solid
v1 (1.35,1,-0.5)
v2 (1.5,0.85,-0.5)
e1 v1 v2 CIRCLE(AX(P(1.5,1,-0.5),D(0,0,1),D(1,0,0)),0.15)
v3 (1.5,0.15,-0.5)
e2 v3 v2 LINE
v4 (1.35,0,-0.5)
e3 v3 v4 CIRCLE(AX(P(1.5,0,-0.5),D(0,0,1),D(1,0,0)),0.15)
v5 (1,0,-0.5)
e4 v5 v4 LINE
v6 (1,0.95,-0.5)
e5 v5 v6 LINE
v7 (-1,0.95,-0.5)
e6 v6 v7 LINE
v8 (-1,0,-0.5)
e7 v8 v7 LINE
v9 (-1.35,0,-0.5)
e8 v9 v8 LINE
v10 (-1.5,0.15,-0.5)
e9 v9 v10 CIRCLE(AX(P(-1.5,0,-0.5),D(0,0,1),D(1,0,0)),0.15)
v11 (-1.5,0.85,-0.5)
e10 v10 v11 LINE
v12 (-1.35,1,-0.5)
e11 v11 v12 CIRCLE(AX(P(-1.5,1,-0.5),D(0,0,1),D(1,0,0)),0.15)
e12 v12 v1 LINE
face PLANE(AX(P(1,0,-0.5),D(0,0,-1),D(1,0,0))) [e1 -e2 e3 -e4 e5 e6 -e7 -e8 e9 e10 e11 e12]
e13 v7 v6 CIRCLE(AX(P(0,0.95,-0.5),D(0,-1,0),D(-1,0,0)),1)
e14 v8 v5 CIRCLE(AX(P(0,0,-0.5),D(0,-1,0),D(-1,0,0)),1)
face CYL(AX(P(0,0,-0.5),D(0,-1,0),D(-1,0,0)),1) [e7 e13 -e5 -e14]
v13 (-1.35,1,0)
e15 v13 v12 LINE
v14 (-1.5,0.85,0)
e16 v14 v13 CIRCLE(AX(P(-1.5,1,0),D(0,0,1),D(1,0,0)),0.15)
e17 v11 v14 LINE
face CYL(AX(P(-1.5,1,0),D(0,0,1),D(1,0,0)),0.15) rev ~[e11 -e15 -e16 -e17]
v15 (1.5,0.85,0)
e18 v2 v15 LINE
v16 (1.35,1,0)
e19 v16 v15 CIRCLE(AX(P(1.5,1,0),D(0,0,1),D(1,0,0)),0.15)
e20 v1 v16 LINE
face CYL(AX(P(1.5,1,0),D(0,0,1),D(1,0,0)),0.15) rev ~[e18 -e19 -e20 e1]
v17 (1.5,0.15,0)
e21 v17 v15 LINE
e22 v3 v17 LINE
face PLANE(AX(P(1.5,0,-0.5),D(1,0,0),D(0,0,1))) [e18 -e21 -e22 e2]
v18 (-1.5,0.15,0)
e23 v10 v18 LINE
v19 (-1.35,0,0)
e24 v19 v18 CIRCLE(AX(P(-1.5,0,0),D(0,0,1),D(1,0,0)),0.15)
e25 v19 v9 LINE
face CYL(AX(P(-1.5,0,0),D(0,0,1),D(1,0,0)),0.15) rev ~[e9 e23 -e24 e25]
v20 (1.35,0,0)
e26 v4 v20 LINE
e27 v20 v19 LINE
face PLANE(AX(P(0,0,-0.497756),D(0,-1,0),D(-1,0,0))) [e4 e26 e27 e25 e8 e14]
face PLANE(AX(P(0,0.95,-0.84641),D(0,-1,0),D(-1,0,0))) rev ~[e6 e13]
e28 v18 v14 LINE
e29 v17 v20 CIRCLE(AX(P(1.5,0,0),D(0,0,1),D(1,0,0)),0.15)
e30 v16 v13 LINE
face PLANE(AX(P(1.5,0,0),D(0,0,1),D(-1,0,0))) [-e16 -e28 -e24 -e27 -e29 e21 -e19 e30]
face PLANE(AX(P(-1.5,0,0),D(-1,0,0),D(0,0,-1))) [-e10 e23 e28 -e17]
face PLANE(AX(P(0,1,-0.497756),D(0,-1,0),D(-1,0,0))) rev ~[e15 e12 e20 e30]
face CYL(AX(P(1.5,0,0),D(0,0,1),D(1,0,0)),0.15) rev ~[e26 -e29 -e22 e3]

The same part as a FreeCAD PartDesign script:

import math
import FreeCAD as App
import Part
import Sketcher

V = App.Vector

doc = App.newDocument("Part")
body = doc.addObject("PartDesign::Body", "Body")

# Sketch on XZ plane
sketch1 = body.newObject("Sketcher::SketchObject", "Sketch")
sketch1.AttachmentSupport = (doc.getObject("XZ_Plane"), [""])
sketch1.MapMode = "FlatFace"
sketch1.addGeometry([
    Part.LineSegment(V(1.5, -0.5, 0), V(1, -0.5, 0)),  # 0
    Part.ArcOfCircle(Part.Circle(V(0, -0.5, 0), V(0, 0, 1), 1), math.radians(180), math.radians(360)),  # 1
    Part.LineSegment(V(-1, -0.5, 0), V(-1.5, -0.5, 0)),  # 2
    Part.LineSegment(V(-1.5, -0.5, 0), V(-1.5, 0, 0)),  # 3
    Part.LineSegment(V(-1.5, 0, 0), V(1.5, 0, 0)),  # 4
    Part.LineSegment(V(1.5, 0, 0), V(1.5, -0.5, 0)),  # 5
], False)
sketch1.addConstraint([
    Sketcher.Constraint("Coincident", 0, 2, 1, 2),
    Sketcher.Constraint("Coincident", 1, 1, 2, 1),
    Sketcher.Constraint("Coincident", 2, 2, 3, 1),
    Sketcher.Constraint("Coincident", 3, 2, 4, 1),
    Sketcher.Constraint("Coincident", 4, 2, 5, 1),
    Sketcher.Constraint("Coincident", 5, 2, 0, 1),
    Sketcher.Constraint("Horizontal", 0),
    Sketcher.Constraint("Horizontal", 2),
    Sketcher.Constraint("Vertical", 3),
    Sketcher.Constraint("Horizontal", 4),
    Sketcher.Constraint("Vertical", 5),
    Sketcher.Constraint("Symmetric", 3, 2, 4, 2, -1, 1),
    Sketcher.Constraint("Symmetric", 0, 2, 1, 1, -2),
    Sketcher.Constraint("Horizontal", 1, 3, 0, 2),
    Sketcher.Constraint("Equal", 2, 3),
    Sketcher.Constraint("Radius", 1, 1.0),
    Sketcher.Constraint("DistanceX", 4, 1, 4, 2, 3.0),
])
pad1 = body.newObject("PartDesign::Pad", "Pad")
pad1.Profile = sketch1
pad1.Length = 1
pad1.Reversed = True

# Sketch on XY plane
sketch2 = body.newObject("Sketcher::SketchObject", "Sketch001")
sketch2.AttachmentSupport = (doc.getObject("XY_Plane"), [""])
sketch2.MapMode = "FlatFace"
sketch2.addGeometry([
    Part.Circle(V(1.5, 1, 0), V(0, 0, 1), 0.15),
    Part.Circle(V(1.5, 0, 0), V(0, 0, 1), 0.15),
    Part.Circle(V(-1.5, 1, 0), V(0, 0, 1), 0.15),
    Part.Circle(V(-1.5, 0, 0), V(0, 0, 1), 0.15),
], False)
sketch2.addConstraint([
    Sketcher.Constraint("Equal", 0, 1),
    Sketcher.Constraint("Equal", 1, 2),
    Sketcher.Constraint("Equal", 2, 3),
    Sketcher.Constraint("Symmetric", 1, 3, 3, 3, -1, 1),
    Sketcher.Constraint("Symmetric", 0, 3, 2, 3, -2),
    Sketcher.Constraint("PointOnObject", 1, 3, -1),
    Sketcher.Constraint("Vertical", 0, 3, 1, 3),
    Sketcher.Constraint("Diameter", 0, 0.3),
    Sketcher.Constraint("DistanceY", -1, 1, 0, 3, 1.0),
    Sketcher.Constraint("DistanceX", 2, 3, 0, 3, 3.0),
])
pocket1 = body.newObject("PartDesign::Pocket", "Pocket")
pocket1.Profile = sketch2
pocket1.Type = "ThroughAll"

# Sketch on XZ plane
sketch3 = body.newObject("Sketcher::SketchObject", "Sketch002")
sketch3.AttachmentSupport = (doc.getObject("XZ_Plane"), [""])
sketch3.MapMode = "FlatFace"
sketch3.AttachmentOffset = App.Placement(V(0, 0, -1), App.Rotation())
sketch3.addGeometry([
    Part.LineSegment(V(-1, -0.5, 0), V(1, -0.5, 0)),
    Part.ArcOfCircle(Part.Circle(V(0, -0.5, 0), V(0, 0, 1), 1), math.radians(180), math.radians(360)),
], False)
sketch3.addConstraint([
    Sketcher.Constraint("Coincident", 0, 1, 1, 1),
    Sketcher.Constraint("Coincident", 1, 2, 0, 2),
    Sketcher.Constraint("Horizontal", 0),
    Sketcher.Constraint("PointOnObject", 1, 3, -2),
    Sketcher.Constraint("Horizontal", 1, 3, 0, 1),
    Sketcher.Constraint("Radius", 1, 1.0),
    Sketcher.Constraint("DistanceY", 1, 3, -1, 1, 0.5),
])
pocket2 = body.newObject("PartDesign::Pocket", "Pocket001")
pocket2.Profile = sketch3
pocket2.Length = 0.05
pocket2.Reversed = True

doc.recompute()
